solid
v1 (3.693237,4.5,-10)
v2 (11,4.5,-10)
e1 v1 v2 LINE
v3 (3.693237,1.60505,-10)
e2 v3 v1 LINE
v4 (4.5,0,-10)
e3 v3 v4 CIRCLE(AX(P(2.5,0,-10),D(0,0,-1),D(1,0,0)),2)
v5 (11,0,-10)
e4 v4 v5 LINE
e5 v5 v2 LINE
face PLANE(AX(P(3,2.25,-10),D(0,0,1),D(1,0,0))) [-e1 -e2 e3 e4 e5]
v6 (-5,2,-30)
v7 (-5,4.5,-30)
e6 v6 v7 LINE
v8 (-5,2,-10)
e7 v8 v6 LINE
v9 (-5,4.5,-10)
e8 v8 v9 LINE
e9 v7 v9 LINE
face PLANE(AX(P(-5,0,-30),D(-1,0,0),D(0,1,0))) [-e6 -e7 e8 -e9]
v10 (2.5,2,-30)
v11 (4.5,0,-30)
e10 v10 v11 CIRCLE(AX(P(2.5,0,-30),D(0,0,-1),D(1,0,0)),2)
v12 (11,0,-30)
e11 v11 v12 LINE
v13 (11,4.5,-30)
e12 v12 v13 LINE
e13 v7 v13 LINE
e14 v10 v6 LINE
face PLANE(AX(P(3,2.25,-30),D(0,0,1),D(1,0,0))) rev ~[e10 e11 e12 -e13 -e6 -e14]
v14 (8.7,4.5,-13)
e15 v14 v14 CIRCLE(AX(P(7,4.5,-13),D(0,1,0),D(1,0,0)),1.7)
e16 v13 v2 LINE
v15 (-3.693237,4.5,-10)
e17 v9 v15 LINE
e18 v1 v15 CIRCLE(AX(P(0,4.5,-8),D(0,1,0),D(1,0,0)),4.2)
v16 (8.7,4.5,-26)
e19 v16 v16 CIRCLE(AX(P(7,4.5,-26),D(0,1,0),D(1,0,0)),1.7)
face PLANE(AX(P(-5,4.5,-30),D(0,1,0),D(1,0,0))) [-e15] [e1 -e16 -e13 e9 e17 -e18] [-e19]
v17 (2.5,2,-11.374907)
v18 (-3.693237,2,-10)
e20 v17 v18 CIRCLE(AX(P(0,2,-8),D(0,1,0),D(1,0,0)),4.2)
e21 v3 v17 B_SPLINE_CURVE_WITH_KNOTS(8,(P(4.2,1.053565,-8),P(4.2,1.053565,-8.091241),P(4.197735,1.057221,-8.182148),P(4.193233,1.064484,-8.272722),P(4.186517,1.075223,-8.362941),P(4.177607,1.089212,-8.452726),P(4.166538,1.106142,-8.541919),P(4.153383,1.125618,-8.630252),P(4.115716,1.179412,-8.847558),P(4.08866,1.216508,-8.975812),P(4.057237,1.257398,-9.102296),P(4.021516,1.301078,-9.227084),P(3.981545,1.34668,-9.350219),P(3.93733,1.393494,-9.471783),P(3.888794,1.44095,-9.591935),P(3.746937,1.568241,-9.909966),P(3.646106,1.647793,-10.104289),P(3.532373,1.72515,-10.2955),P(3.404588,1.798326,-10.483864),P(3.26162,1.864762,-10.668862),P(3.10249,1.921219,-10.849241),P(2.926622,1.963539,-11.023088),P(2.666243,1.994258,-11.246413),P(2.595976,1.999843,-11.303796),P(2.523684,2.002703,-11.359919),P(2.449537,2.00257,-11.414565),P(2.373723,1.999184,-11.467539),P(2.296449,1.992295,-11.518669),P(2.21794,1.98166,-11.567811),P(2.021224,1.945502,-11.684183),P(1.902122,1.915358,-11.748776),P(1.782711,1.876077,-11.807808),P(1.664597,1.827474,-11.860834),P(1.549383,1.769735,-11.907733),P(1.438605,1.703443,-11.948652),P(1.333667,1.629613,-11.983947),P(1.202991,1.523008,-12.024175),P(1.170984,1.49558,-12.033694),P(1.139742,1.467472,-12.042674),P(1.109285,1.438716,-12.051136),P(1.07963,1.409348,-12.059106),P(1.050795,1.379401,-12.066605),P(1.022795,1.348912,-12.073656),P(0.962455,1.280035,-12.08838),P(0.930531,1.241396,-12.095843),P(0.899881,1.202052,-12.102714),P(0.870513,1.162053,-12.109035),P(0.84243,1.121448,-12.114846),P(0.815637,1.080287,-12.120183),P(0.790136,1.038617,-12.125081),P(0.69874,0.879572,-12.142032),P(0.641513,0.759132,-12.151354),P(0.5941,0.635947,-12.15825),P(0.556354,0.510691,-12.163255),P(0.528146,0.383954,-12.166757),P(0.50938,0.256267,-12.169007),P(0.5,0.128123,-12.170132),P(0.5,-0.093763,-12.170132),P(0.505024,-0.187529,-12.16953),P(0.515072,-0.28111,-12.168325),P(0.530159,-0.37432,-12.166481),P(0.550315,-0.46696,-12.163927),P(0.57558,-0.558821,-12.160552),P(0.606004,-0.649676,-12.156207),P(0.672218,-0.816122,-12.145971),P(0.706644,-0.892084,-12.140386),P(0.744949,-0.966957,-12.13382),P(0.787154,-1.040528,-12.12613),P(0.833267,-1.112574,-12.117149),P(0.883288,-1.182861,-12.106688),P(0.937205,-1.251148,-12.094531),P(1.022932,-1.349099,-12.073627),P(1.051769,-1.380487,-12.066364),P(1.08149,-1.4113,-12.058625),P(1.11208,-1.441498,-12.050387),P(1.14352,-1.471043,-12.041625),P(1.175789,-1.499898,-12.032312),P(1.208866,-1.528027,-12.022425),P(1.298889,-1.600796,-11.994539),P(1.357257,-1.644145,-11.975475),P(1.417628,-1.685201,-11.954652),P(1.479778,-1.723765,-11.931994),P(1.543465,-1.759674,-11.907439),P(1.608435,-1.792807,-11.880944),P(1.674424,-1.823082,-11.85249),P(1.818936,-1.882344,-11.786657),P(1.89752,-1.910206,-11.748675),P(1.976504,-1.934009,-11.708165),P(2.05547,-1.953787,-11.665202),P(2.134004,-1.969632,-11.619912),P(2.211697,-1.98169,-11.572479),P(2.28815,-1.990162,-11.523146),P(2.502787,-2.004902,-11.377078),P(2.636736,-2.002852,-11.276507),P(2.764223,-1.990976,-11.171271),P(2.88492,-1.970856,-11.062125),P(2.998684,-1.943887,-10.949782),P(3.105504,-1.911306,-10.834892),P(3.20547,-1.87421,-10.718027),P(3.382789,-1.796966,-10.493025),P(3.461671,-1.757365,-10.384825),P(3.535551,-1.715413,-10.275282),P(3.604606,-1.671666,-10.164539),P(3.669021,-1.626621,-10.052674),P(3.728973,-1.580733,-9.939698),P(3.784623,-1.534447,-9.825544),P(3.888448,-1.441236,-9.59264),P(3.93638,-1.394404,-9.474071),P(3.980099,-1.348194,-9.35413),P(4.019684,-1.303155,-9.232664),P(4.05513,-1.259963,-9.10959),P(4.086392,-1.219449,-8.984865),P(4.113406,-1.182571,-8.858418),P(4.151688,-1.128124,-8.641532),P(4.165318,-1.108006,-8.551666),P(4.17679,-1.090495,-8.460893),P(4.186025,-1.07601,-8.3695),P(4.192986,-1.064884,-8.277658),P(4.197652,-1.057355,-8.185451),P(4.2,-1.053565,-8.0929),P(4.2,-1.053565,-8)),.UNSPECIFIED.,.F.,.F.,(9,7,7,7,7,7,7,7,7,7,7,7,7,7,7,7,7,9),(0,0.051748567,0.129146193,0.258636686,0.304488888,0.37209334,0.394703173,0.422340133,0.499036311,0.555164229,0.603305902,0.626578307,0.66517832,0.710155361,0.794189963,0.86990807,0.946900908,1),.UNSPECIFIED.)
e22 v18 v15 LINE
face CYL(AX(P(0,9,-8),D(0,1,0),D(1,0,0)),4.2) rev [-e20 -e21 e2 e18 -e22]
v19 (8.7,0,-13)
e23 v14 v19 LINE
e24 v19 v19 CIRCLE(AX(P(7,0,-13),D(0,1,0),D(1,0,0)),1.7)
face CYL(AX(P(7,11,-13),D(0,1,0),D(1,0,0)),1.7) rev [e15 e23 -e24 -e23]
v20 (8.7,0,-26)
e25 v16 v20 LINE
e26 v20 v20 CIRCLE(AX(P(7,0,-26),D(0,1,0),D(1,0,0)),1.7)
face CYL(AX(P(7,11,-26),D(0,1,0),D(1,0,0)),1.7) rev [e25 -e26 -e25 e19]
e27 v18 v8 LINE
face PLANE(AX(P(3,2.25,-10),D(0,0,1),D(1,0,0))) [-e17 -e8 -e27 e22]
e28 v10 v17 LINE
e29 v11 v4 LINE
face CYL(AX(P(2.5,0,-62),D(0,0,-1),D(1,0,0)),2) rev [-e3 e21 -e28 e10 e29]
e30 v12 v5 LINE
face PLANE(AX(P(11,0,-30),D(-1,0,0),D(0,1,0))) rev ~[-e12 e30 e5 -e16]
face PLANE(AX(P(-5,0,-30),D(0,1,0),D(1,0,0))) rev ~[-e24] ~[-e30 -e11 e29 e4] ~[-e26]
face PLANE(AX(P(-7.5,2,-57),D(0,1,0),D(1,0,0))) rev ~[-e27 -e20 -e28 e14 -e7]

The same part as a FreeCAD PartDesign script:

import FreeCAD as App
import Part
import Sketcher
from FreeCAD import Vector
Q = App.Units.Quantity

doc = App.newDocument("Part")
body = doc.addObject("PartDesign::Body", "Body")

# Sketch on XY plane
sketch1 = body.newObject("Sketcher::SketchObject", "Sketch")
sketch1.AttachmentSupport = (doc.getObject("XY_Plane"), [""])
sketch1.MapMode = "FlatFace"
sketch1.addGeometry(Part.Circle(Vector(0, 0, 0), Vector(0, 0, 1), 4.2), False)
sketch1.addConstraint([
    Sketcher.Constraint("Coincident", 0, 3, -1, 1),
    Sketcher.Constraint("Diameter", 0, Q("8.4 mm")),
])
pad1 = body.newObject("PartDesign::Pad", "Pad")
pad1.Profile = sketch1
pad1.Length = 18
body2 = doc.addObject("PartDesign::Body", "Body001")
doc.recompute()

body.Placement = App.Placement(Vector(0, 0, 0), App.Rotation(Vector(1, 0, 0), 90))
boolean = body2.newObject("PartDesign::Boolean", "Boolean")
boolean.Type = "Fuse"
boolean.addObjects([body])
body3 = doc.addObject("PartDesign::Body", "Body002")
doc.recompute()

body2.Placement = App.Placement(Vector(0, 9, -8), App.Rotation(Vector(0, 0, 1), 0))
boolean2 = body3.newObject("PartDesign::Boolean", "Boolean001")
boolean2.Type = "Fuse"
boolean2.addObjects([body2])
body4 = doc.addObject("PartDesign::Body", "Body003")

# Sketch on XY plane
sketch2 = body4.newObject("Sketcher::SketchObject", "Sketch001")
sketch2.AttachmentSupport = (doc.getObject("XY_Plane003"), [""])
sketch2.MapMode = "FlatFace"
sketch2.addGeometry(Part.Circle(Vector(0, 0, 0), Vector(0, 0, 1), 1.7), False)
sketch2.addConstraint([
    Sketcher.Constraint("Coincident", 0, 3, -1, 1),
    Sketcher.Constraint("Diameter", 0, Q("3.4 mm")),
])
pad2 = body4.newObject("PartDesign::Pad", "Pad001")
pad2.Profile = sketch2
pad2.Length = 20
body5 = doc.addObject("PartDesign::Body", "Body004")
doc.recompute()

body4.Placement = App.Placement(Vector(0, 0, 0), App.Rotation(Vector(1, 0, 0), 90))
boolean3 = body5.newObject("PartDesign::Boolean", "Boolean002")
boolean3.Type = "Fuse"
boolean3.addObjects([body4])
body6 = doc.addObject("PartDesign::Body", "Body005")
doc.recompute()

body5.Placement = App.Placement(Vector(7, 11, -13), App.Rotation(Vector(0, 0, 1), 0))
boolean4 = body6.newObject("PartDesign::Boolean", "Boolean003")
boolean4.Type = "Fuse"
boolean4.addObjects([body5])
body7 = doc.addObject("PartDesign::Body", "Body006")

# Sketch on XY plane
sketch3 = body7.newObject("Sketcher::SketchObject", "Sketch002")
sketch3.AttachmentSupport = (doc.getObject("XY_Plane006"), [""])
sketch3.MapMode = "FlatFace"
sketch3.addGeometry(Part.Circle(Vector(0, 0, 0), Vector(0, 0, 1), 1.7), False)
sketch3.addConstraint([
    Sketcher.Constraint("Coincident", 0, 3, -1, 1),
    Sketcher.Constraint("Diameter", 0, Q("3.4 mm")),
])
pad3 = body7.newObject("PartDesign::Pad", "Pad002")
pad3.Profile = sketch3
pad3.Length = 20
body8 = doc.addObject("PartDesign::Body", "Body007")
doc.recompute()

body7.Placement = App.Placement(Vector(0, 0, 0), App.Rotation(Vector(1, 0, 0), 90))
boolean5 = body8.newObject("PartDesign::Boolean", "Boolean004")
boolean5.Type = "Fuse"
boolean5.addObjects([body7])
body9 = doc.addObject("PartDesign::Body", "Body008")
body9.AllowCompound = True
doc.recompute()

body8.Placement = App.Placement(Vector(7, 11, -26), App.Rotation(Vector(0, 0, 1), 0))
boolean6 = body9.newObject("PartDesign::Boolean", "Boolean005")
boolean6.Type = "Fuse"
boolean6.addObjects([body8])
doc.recompute()

boolean7 = body9.newObject("PartDesign::Boolean", "Boolean006")
boolean7.Type = "Fuse"
boolean7.addObjects([body6])
body10 = doc.addObject("PartDesign::Body", "Body009")

# Sketch on XY plane
sketch4 = body10.newObject("Sketcher::SketchObject", "Sketch003")
sketch4.AttachmentSupport = (doc.getObject("XY_Plane009"), [""])
sketch4.MapMode = "FlatFace"
sketch4.AttachmentOffset = App.Placement(Vector(0, 0, -57), App.Rotation())
sketch4.addGeometry([
    Part.LineSegment(Vector(-10, 2, 0), Vector(-10, -2, 0)),
    Part.LineSegment(Vector(-10, -2, 0), Vector(0, -2, 0)),
    Part.LineSegment(Vector(0, -2, 0), Vector(0, 2, 0)),
    Part.LineSegment(Vector(0, 2, 0), Vector(-10, 2, 0)),
], False)
sketch4.addConstraint([
    Sketcher.Constraint("Coincident", 0, 2, 1, 1),
    Sketcher.Constraint("Coincident", 1, 2, 2, 1),
    Sketcher.Constraint("Coincident", 2, 2, 3, 1),
    Sketcher.Constraint("Coincident", 3, 2, 0, 1),
    Sketcher.Constraint("Vertical", 0),
    Sketcher.Constraint("Horizontal", 1),
    Sketcher.Constraint("Vertical", 2),
    Sketcher.Constraint("Horizontal", 3),
    Sketcher.Constraint("Symmetric", 1, 2, 2, 2, -1, 1),
    Sketcher.Constraint("DistanceX", 1, 1, 1, 2, Q("10 mm")),
    Sketcher.Constraint("DistanceY", 0, 2, 0, 1, Q("4 mm")),
])
pad4 = body10.newObject("PartDesign::Pad", "Pad003")
pad4.Profile = sketch4
pad4.Length = 60
body11 = doc.addObject("PartDesign::Body", "Body010")

# Sketch on XY plane
sketch5 = body11.newObject("Sketcher::SketchObject", "Sketch004")
sketch5.AttachmentSupport = (doc.getObject("XY_Plane010"), [""])
sketch5.MapMode = "FlatFace"
sketch5.AttachmentOffset = App.Placement(Vector(0, 0, -62), App.Rotation())
sketch5.addGeometry(Part.Circle(Vector(0, 0, 0), Vector(0, 0, 1), 2), False)
sketch5.addConstraint([
    Sketcher.Constraint("Coincident", 0, 3, -1, 1),
    Sketcher.Constraint("Diameter", 0, Q("4 mm")),
])
pad5 = body11.newObject("PartDesign::Pad", "Pad004")
pad5.Profile = sketch5
pad5.Length = 74
doc.recompute()

boolean8 = body11.newObject("PartDesign::Boolean", "Boolean007")
boolean8.Type = "Fuse"
boolean8.addObjects([body10])
body12 = doc.addObject("PartDesign::Body", "Body011")
body12.AllowCompound = True
doc.recompute()

body11.Placement = App.Placement(Vector(2.5, 0, 0), App.Rotation(Vector(0, 0, 1), 0))
boolean9 = body12.newObject("PartDesign::Boolean", "Boolean008")
boolean9.Type = "Fuse"
boolean9.addObjects([body11])
doc.recompute()

boolean10 = body12.newObject("PartDesign::Boolean", "Boolean009")
boolean10.Type = "Fuse"
boolean10.addObjects([body3])
doc.recompute()

boolean11 = body12.newObject("PartDesign::Boolean", "Boolean010")
boolean11.Type = "Fuse"
boolean11.addObjects([body9])
body13 = doc.addObject("PartDesign::Body", "Body012")

# Sketch on XY plane
sketch6 = body13.newObject("Sketcher::SketchObject", "Sketch005")
sketch6.AttachmentSupport = (doc.getObject("XY_Plane012"), [""])
sketch6.MapMode = "FlatFace"
sketch6.AttachmentOffset = App.Placement(Vector(0, 0, -30), App.Rotation())
sketch6.addGeometry([
    Part.LineSegment(Vector(-5, 4.5, 0), Vector(-5, 0, 0)),
    Part.LineSegment(Vector(-5, 0, 0), Vector(11, 0, 0)),
    Part.LineSegment(Vector(11, 0, 0), Vector(11, 4.5, 0)),
    Part.LineSegment(Vector(11, 4.5, 0), Vector(-5, 4.5, 0)),
], False)
sketch6.addConstraint([
    Sketcher.Constraint("Coincident", 0, 2, 1, 1),
    Sketcher.Constraint("Coincident", 1, 2, 2, 1),
    Sketcher.Constraint("Coincident", 2, 2, 3, 1),
    Sketcher.Constraint("Coincident", 3, 2, 0, 1),
    Sketcher.Constraint("Vertical", 0),
    Sketcher.Constraint("Horizontal", 1),
    Sketcher.Constraint("Vertical", 2),
    Sketcher.Constraint("Horizontal", 3),
    Sketcher.Constraint("PointOnObject", 0, 2, -1),
    Sketcher.Constraint("DistanceX", 1, 1, 1, 2, Q("16 mm")),
    Sketcher.Constraint("DistanceY", 0, 2, 0, 1, Q("4.5 mm")),
    Sketcher.Constraint("DistanceX", 0, 2, -1, 1, Q("5 mm")),
])
pad6 = body13.newObject("PartDesign::Pad", "Pad005")
pad6.Profile = sketch6
pad6.Length = 20
doc.recompute()

boolean12 = body13.newObject("PartDesign::Boolean", "Boolean011")
boolean12.Type = "Cut"
boolean12.addObjects([body12])

doc.recompute()
